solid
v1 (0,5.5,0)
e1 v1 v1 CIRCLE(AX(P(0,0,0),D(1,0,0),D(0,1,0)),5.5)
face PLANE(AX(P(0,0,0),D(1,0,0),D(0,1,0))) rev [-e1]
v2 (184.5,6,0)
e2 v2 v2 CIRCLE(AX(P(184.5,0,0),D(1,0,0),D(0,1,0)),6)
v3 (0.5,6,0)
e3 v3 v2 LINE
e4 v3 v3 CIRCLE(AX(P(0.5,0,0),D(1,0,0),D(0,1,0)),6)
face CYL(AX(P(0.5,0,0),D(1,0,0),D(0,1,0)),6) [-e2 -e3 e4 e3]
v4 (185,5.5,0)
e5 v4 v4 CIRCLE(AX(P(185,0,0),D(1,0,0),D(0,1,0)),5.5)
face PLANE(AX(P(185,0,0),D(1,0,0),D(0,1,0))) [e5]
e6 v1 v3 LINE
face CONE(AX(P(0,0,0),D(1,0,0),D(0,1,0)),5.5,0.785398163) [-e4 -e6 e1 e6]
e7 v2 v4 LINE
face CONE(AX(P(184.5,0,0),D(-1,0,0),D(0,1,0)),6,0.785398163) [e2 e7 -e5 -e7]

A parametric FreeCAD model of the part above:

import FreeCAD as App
import Part
import Sketcher
from FreeCAD import Vector

doc = App.newDocument("Part")
params = doc.addObject("Spreadsheet::Sheet", "Params")
for row, (alias, value) in enumerate([
    ("sketch1_width", "185 mm"),
    ("sketch1_width2", "184 mm"),
    ("sketch1_height", "5.5 mm"),
    ("revolution_angle", "360 deg"),
], start=1):
    params.set(f"A{row}", alias)
    params.set(f"B{row}", "=" + value)
    params.setAlias(f"B{row}", alias)

body = doc.addObject("PartDesign::Body", "Body")

sketch1 = body.newObject("Sketcher::SketchObject", "Sketch")
sketch1.AttachmentSupport = (doc.getObject("XY_Plane"), [""])
sketch1.MapMode = "FlatFace"
sketch1.addGeometry([
    Part.LineSegment(Vector(0, 0, 0), Vector(185, 0, 0)),
    Part.LineSegment(Vector(185, 0, 0), Vector(185, 5.5, 0)),
    Part.LineSegment(Vector(185, 5.5, 0), Vector(184.5, 6, 0)),
    Part.LineSegment(Vector(184.5, 6, 0), Vector(0.5, 6, 0)),
    Part.LineSegment(Vector(0.5, 6, 0), Vector(0, 5.5, 0)),
    Part.LineSegment(Vector(0, 5.5, 0), Vector(0, 0, 0)),
], False)
sketch1.addConstraint([
    Sketcher.Constraint("Coincident", 0, 2, 1, 1),
    Sketcher.Constraint("Coincident", 1, 2, 2, 1),
    Sketcher.Constraint("Coincident", 2, 2, 3, 1),
    Sketcher.Constraint("Coincident", 3, 2, 4, 1),
    Sketcher.Constraint("Coincident", 4, 2, 5, 1),
    Sketcher.Constraint("Coincident", 5, 2, 0, 1),
    Sketcher.Constraint("Horizontal", 0),
    Sketcher.Constraint("Vertical", 1),
    Sketcher.Constraint("Horizontal", 3),
    Sketcher.Constraint("Vertical", 5),
    Sketcher.Constraint("Coincident", 5, 2, -1, 1),
    Sketcher.Constraint("Perpendicular", 2, 4),
    Sketcher.Constraint("Horizontal", 1, 2, 4, 2),
    Sketcher.Constraint("Equal", 2, 4),
    Sketcher.Constraint("DistanceX", 0, 1, 0, 2, 185.0),
    Sketcher.Constraint("DistanceX", 3, 2, 3, 1, 184.0),
    Sketcher.Constraint("DistanceY", 1, 1, 1, 2, 5.5),
])
sketch1.setExpression("Constraints[14]", "Params.sketch1_width")
sketch1.setExpression("Constraints[15]", "Params.sketch1_width2")
sketch1.setExpression("Constraints[16]", "Params.sketch1_height")
revolution = body.newObject("PartDesign::Revolution", "Revolution")
revolution.Profile = sketch1
revolution.ReferenceAxis = (sketch1, ["H_Axis"])
revolution.setExpression("Angle", "Params.revolution_angle")

doc.recompute()
